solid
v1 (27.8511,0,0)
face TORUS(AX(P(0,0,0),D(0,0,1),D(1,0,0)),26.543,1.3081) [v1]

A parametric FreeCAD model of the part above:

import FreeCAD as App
import Part
import Sketcher
from FreeCAD import Vector
Q = App.Units.Quantity

doc = App.newDocument("Part")
body = doc.addObject("PartDesign::Body", "Body")

# Sketch on YZ plane
sketch1 = doc.addObject("Sketcher::SketchObject", "Sketch")
body.addObject(sketch1)
sketch1.AttachmentSupport = (doc.YZ_Plane, [""])
sketch1.MapMode = "FlatFace"
sketch1.addGeometry(Part.Circle(Vector(-26.5, 0, 0), Vector(0, 0, 1), 1.3), False)
sketch1.addConstraint([
    Sketcher.Constraint("PointOnObject", 0, 3, -1),
    Sketcher.Constraint("Diameter", 0, Q("0.103 in")),
    Sketcher.Constraint("DistanceX", 0, 3, -1, 1, Q("1.045 in")),
])
revolution = doc.addObject("PartDesign::Revolution", "Revolution")
body.addObject(revolution)
revolution.Profile = sketch1
revolution.ReferenceAxis = (sketch1, ["V_Axis"])
revolution.Angle = 360

doc.recompute()
